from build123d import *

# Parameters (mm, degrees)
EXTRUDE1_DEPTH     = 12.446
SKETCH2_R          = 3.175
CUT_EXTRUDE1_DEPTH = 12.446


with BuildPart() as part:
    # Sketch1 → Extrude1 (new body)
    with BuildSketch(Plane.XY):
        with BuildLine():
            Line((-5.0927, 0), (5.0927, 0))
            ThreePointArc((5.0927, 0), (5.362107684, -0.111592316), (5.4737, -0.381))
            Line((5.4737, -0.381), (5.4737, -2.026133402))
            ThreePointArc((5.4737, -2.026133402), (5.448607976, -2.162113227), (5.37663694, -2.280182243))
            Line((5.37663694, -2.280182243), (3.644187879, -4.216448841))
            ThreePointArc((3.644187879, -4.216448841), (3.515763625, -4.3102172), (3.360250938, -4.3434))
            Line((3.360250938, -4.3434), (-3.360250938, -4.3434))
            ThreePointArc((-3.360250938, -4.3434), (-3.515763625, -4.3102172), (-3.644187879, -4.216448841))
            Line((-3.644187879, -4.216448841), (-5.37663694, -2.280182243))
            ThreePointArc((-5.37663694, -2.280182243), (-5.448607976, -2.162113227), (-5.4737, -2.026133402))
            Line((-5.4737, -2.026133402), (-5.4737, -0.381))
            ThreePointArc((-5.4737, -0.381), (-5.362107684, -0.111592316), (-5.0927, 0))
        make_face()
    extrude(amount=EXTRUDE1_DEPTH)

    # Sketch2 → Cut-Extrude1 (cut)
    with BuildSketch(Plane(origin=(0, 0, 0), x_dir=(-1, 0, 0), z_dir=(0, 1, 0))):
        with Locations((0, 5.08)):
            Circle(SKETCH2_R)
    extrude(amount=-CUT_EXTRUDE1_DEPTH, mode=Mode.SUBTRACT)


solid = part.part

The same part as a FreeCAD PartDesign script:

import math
import FreeCAD as App
import Part
import Sketcher
from FreeCAD import Vector
Q = App.Units.Quantity

doc = App.newDocument("Part")
body = doc.addObject("PartDesign::Body", "Body")

# Sketch on XY plane
sketch1 = body.newObject("Sketcher::SketchObject", "Sketch")
sketch1.AttachmentSupport = (doc.getObject("XY_Plane"), [""])
sketch1.MapMode = "FlatFace"
sketch1.addGeometry([
    Part.LineSegment(Vector(5.09, 0, 0), Vector(-5.09, 0, 0)),  # 0
    Part.ArcOfCircle(Part.Circle(Vector(-5.09, -0.38, 0), Vector(0, 0, 1), 0.38), math.radians(90), math.radians(180)),  # 1
    Part.LineSegment(Vector(-5.47, -0.38, 0), Vector(-5.47, -2.03, 0)),  # 2
    Part.ArcOfCircle(Part.Circle(Vector(-5.09, -2.03, 0), Vector(0, 0, 1), 0.38), math.radians(180), math.radians(222)),  # 3
    Part.LineSegment(Vector(-5.38, -2.28, 0), Vector(-3.64, -4.22, 0)),  # 4
    Part.ArcOfCircle(Part.Circle(Vector(-3.36, -3.96, 0), Vector(0, 0, 1), 0.38), math.radians(-138), math.radians(-90)),  # 5
    Part.LineSegment(Vector(-3.36, -4.34, 0), Vector(3.36, -4.34, 0)),  # 6
    Part.ArcOfCircle(Part.Circle(Vector(3.36, -3.96, 0), Vector(0, 0, 1), 0.38), math.radians(-90), math.radians(-42)),  # 7
    Part.LineSegment(Vector(3.64, -4.22, 0), Vector(5.38, -2.28, 0)),  # 8
    Part.ArcOfCircle(Part.Circle(Vector(5.09, -2.03, 0), Vector(0, 0, 1), 0.38), math.radians(-42), math.radians(0)),  # 9
    Part.LineSegment(Vector(5.47, -2.03, 0), Vector(5.47, -0.38, 0)),  # 10
    Part.ArcOfCircle(Part.Circle(Vector(5.09, -0.38, 0), Vector(0, 0, 1), 0.38), math.radians(0), math.radians(90)),  # 11
], False)
sketch1.addConstraint([
    Sketcher.Constraint("Tangent", 0, 2, 1, 1),
    Sketcher.Constraint("Tangent", 1, 2, 2, 1),
    Sketcher.Constraint("Tangent", 2, 2, 3, 1),
    Sketcher.Constraint("Tangent", 3, 2, 4, 1),
    Sketcher.Constraint("Tangent", 4, 2, 5, 1),
    Sketcher.Constraint("Tangent", 5, 2, 6, 1),
    Sketcher.Constraint("Tangent", 6, 2, 7, 1),
    Sketcher.Constraint("Tangent", 7, 2, 8, 1),
    Sketcher.Constraint("Tangent", 8, 2, 9, 1),
    Sketcher.Constraint("Tangent", 9, 2, 10, 1),
    Sketcher.Constraint("Tangent", 10, 2, 11, 1),
    Sketcher.Constraint("Tangent", 11, 2, 0, 1),
    Sketcher.Constraint("Horizontal", 0),
    Sketcher.Constraint("Vertical", 2),
    Sketcher.Constraint("Horizontal", 6),
    Sketcher.Constraint("Vertical", 10),
    Sketcher.Constraint("Equal", 1, 3),
    Sketcher.Constraint("Equal", 3, 5),
    Sketcher.Constraint("Equal", 5, 7),
    Sketcher.Constraint("Equal", 7, 9),
    Sketcher.Constraint("Equal", 9, 11),
    Sketcher.Constraint("Symmetric", 0, 2, 11, 2, -1, 1),
    Sketcher.Constraint("Symmetric", 4, 2, 7, 2, -2),
    Sketcher.Constraint("Radius", 1, Q("0.015 in")),
    Sketcher.Constraint("DistanceX", 0, 2, 0, 1, Q("0.401 in")),
    Sketcher.Constraint("DistanceY", 5, 3, -1, 1, Q("0.156 in")),
    Sketcher.Constraint("DistanceX", 6, 1, 6, 2, 6.720502),
    Sketcher.Constraint("DistanceY", 2, 2, 2, 1, 1.645133),
])
pad1 = body.newObject("PartDesign::Pad", "Pad")
pad1.Profile = sketch1
pad1.Length = Q("0.49 in")

# Sketch on XZ plane
sketch2 = body.newObject("Sketcher::SketchObject", "Sketch001")
sketch2.AttachmentSupport = (doc.getObject("XZ_Plane"), [""])
sketch2.MapMode = "FlatFace"
sketch2.addGeometry(Part.Circle(Vector(0, 5.1, 0), Vector(0, 0, 1), 3.2), False)
sketch2.addConstraint([
    Sketcher.Constraint("PointOnObject", 0, 3, -2),
    Sketcher.Constraint("Diameter", 0, Q("0.25 in")),
    Sketcher.Constraint("DistanceY", -1, 1, 0, 3, Q("0.2 in")),
])
pocket1 = body.newObject("PartDesign::Pocket", "Pocket")
pocket1.Profile = sketch2
pocket1.Length = Q("0.49 in")
pocket1.Reversed = True

doc.recompute()
